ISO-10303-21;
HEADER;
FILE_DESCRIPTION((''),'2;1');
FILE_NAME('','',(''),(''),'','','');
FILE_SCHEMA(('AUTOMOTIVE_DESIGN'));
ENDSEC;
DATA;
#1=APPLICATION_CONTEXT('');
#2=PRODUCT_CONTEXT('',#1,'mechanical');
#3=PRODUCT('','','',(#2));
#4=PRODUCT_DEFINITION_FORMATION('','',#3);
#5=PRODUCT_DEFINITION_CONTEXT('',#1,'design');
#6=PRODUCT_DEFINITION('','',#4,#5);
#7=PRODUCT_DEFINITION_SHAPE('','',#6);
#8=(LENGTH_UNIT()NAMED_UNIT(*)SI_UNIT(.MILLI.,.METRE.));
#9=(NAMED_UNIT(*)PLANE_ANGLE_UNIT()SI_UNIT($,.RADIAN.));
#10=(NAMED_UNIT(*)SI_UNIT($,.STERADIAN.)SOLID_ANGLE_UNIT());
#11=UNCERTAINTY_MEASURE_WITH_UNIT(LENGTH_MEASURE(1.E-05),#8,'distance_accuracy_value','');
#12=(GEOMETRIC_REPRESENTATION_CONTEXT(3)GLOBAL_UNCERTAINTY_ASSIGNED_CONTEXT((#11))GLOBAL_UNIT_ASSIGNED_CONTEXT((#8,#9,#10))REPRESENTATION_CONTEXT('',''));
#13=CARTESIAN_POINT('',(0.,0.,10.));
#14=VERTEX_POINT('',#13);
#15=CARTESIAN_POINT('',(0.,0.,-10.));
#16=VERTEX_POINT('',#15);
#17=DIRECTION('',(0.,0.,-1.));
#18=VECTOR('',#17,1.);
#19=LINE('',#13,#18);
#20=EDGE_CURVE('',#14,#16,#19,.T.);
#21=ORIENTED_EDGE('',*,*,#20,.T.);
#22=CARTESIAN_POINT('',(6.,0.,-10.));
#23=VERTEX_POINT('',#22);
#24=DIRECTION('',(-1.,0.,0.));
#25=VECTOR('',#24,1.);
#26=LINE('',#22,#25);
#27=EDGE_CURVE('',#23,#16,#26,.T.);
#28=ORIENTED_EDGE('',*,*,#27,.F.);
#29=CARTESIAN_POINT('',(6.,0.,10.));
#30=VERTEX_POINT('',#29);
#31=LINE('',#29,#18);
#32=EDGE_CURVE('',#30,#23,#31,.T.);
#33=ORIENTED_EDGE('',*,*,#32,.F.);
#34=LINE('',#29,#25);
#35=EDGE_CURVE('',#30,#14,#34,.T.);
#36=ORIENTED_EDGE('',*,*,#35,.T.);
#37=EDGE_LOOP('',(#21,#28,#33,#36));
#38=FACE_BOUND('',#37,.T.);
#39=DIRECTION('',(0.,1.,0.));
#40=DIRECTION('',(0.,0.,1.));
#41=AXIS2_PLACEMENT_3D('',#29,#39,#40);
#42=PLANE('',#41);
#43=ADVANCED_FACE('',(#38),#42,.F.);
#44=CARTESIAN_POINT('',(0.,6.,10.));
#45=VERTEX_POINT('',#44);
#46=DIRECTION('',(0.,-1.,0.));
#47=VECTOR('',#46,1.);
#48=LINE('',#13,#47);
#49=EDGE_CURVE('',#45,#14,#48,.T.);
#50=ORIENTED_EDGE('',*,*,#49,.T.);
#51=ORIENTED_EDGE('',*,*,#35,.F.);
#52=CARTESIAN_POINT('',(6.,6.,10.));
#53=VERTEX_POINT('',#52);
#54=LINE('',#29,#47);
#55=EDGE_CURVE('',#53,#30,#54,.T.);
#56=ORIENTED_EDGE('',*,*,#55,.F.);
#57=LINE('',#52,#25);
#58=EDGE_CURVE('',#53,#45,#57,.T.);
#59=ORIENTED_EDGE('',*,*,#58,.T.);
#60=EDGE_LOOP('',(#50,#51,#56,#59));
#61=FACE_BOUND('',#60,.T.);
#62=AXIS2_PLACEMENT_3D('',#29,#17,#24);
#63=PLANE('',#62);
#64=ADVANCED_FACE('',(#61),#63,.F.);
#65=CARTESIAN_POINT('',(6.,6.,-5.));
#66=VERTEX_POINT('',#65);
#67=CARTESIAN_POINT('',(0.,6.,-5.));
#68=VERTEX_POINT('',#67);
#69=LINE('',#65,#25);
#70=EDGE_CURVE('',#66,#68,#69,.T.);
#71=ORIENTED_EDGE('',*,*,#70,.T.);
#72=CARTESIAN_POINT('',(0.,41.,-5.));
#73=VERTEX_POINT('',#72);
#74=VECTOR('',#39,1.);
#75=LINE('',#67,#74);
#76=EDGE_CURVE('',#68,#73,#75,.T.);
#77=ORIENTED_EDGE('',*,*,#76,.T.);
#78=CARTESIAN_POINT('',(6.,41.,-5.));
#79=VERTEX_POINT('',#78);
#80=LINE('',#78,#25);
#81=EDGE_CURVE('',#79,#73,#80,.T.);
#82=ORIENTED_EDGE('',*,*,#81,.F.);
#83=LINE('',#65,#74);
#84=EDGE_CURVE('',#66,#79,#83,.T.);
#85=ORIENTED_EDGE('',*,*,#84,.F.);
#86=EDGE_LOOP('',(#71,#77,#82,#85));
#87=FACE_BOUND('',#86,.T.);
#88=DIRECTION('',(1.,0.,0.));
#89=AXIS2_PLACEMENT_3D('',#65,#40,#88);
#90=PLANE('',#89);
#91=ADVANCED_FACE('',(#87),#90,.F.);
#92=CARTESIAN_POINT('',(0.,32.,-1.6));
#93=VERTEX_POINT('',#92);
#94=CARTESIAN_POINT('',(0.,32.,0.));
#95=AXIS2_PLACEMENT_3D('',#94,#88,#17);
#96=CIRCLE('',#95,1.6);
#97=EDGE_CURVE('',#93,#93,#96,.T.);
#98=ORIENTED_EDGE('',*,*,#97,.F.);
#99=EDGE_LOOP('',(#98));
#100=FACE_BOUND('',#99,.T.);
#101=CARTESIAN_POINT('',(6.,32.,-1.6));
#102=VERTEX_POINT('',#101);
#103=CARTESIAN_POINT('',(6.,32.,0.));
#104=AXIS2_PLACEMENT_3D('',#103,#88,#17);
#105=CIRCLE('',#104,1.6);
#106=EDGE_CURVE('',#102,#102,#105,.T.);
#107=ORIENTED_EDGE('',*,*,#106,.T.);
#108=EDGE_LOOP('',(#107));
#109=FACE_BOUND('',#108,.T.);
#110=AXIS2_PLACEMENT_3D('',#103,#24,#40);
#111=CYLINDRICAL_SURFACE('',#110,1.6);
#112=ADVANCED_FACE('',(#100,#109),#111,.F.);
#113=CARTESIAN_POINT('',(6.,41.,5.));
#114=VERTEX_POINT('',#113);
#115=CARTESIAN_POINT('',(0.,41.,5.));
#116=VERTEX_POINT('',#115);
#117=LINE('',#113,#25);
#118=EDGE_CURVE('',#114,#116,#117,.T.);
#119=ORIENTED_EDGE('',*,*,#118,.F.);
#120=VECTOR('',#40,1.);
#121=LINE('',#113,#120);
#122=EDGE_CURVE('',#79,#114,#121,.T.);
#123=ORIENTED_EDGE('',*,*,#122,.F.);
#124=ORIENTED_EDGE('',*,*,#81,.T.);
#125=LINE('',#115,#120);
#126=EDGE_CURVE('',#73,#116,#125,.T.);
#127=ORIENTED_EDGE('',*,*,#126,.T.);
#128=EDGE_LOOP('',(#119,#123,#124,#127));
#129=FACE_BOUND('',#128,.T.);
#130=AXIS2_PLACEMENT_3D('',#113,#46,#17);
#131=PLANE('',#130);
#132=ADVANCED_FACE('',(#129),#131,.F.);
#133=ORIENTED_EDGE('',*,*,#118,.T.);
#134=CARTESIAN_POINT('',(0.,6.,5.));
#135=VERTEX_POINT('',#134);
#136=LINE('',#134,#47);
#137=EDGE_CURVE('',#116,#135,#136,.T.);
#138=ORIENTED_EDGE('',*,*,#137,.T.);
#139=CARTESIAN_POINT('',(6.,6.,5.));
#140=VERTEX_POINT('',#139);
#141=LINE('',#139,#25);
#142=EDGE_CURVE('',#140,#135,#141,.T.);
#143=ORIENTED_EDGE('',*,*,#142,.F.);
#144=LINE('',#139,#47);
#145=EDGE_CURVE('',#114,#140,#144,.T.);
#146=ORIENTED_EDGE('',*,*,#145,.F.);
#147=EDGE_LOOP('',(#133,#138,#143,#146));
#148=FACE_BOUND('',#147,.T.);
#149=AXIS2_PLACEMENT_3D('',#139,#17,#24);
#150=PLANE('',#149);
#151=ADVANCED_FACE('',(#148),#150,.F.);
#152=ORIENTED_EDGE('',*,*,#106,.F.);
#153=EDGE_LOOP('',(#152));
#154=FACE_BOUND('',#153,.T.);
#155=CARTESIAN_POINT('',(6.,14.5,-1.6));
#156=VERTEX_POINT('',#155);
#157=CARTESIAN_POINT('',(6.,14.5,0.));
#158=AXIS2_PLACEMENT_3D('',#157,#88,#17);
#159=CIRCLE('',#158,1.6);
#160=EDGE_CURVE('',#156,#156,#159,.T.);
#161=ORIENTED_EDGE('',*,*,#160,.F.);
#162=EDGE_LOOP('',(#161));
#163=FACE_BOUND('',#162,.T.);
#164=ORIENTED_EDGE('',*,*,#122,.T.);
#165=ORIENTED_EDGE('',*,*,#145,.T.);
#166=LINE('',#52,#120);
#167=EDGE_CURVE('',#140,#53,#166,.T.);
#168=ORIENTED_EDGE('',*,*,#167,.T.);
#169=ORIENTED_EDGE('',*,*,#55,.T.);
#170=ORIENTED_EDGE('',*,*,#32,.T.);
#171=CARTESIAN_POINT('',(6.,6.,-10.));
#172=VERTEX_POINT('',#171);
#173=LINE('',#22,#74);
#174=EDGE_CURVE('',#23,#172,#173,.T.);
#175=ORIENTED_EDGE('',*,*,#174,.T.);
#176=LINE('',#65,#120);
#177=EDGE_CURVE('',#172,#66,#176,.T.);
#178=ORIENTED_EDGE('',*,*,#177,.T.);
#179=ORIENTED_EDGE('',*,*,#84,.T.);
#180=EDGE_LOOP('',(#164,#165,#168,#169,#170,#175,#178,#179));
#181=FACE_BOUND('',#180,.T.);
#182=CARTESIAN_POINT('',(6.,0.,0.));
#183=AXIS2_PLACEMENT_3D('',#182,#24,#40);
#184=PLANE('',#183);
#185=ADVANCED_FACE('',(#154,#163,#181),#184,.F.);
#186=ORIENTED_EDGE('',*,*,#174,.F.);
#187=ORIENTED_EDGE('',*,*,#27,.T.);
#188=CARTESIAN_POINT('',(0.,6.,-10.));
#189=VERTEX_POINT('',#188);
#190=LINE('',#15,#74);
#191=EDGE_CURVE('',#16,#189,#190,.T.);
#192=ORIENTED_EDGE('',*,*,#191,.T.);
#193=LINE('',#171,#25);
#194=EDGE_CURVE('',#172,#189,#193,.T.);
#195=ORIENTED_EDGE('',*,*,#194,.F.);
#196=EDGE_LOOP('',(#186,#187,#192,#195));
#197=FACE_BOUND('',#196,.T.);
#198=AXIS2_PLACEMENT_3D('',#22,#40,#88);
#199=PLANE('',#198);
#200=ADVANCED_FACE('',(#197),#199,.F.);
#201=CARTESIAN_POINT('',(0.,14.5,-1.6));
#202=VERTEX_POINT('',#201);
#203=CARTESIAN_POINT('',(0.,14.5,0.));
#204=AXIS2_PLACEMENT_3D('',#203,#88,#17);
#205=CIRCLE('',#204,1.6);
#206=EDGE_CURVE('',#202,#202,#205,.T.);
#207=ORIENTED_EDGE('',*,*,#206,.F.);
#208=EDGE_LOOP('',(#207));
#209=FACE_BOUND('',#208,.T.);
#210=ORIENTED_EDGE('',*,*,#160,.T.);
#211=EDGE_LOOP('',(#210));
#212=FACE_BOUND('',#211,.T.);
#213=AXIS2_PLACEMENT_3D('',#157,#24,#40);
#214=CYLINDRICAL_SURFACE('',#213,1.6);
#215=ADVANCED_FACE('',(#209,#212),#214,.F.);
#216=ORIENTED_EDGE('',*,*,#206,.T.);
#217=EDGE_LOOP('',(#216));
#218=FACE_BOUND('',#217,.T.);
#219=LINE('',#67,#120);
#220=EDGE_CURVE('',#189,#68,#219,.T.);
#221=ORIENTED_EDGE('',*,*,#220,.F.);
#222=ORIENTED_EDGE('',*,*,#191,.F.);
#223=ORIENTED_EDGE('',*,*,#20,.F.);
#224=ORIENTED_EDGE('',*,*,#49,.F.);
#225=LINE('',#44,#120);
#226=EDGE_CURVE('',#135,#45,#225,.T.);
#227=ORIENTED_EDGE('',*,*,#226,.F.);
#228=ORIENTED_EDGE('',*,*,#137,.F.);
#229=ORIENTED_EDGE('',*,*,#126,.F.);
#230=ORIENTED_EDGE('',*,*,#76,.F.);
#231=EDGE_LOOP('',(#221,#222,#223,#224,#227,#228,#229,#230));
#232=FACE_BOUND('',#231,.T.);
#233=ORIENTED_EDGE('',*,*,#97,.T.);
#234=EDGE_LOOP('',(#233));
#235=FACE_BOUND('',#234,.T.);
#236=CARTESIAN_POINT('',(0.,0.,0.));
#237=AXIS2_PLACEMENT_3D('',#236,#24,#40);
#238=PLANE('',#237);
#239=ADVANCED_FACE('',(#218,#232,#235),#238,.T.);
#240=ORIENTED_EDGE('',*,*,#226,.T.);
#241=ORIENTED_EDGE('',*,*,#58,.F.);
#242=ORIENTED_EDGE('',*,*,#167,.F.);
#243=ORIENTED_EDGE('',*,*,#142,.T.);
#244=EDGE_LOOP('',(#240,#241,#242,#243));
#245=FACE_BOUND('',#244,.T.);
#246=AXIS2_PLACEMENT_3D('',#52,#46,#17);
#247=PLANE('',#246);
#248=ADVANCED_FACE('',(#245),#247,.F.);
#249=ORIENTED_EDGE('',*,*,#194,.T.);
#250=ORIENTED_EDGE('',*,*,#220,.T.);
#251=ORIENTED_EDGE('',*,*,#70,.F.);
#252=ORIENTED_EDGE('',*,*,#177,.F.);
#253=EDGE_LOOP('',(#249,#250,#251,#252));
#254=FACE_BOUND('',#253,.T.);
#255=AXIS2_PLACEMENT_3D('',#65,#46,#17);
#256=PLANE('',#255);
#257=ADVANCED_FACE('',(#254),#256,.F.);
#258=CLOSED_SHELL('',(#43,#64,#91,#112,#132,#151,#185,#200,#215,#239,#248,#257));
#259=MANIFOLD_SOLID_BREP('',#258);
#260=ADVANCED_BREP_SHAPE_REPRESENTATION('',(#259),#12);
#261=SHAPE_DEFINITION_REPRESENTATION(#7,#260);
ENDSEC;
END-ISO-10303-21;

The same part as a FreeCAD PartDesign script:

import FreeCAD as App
import Part
import Sketcher

V = App.Vector

doc = App.newDocument("Part")
body = doc.addObject("PartDesign::Body", "Body")

# Sketch on YZ plane
sketch1 = body.newObject("Sketcher::SketchObject", "Sketch")
sketch1.AttachmentSupport = (doc.getObject("YZ_Plane"), [""])
sketch1.MapMode = "FlatFace"
sketch1.addGeometry(Part.LineSegment(V(6, -10, 0), V(6, -5, 0)), False)
sketch1.addGeometry(Part.LineSegment(V(6, -5, 0), V(41, -5, 0)), False)
sketch1.addGeometry(Part.LineSegment(V(41, -5, 0), V(41, 5, 0)), False)
sketch1.addGeometry(Part.LineSegment(V(41, 5, 0), V(6, 5, 0)), False)
sketch1.addGeometry(Part.LineSegment(V(6, 5, 0), V(6, 10, 0)), False)
sketch1.addGeometry(Part.LineSegment(V(6, 10, 0), V(0, 10, 0)), False)
sketch1.addGeometry(Part.LineSegment(V(0, 10, 0), V(0, -10, 0)), False)
sketch1.addGeometry(Part.LineSegment(V(0, -10, 0), V(6, -10, 0)), False)
sketch1.addGeometry(Part.Circle(V(14.5, 0, 0), V(0, 0, 1), 1.6), False)
sketch1.addGeometry(Part.Circle(V(32, 0, 0), V(0, 0, 1), 1.6), False)
sketch1.addConstraint(Sketcher.Constraint("Coincident", 0, 2, 1, 1))
sketch1.addConstraint(Sketcher.Constraint("Coincident", 1, 2, 2, 1))
sketch1.addConstraint(Sketcher.Constraint("Coincident", 2, 2, 3, 1))
sketch1.addConstraint(Sketcher.Constraint("Coincident", 3, 2, 4, 1))
sketch1.addConstraint(Sketcher.Constraint("Coincident", 4, 2, 5, 1))
sketch1.addConstraint(Sketcher.Constraint("Coincident", 5, 2, 6, 1))
sketch1.addConstraint(Sketcher.Constraint("Coincident", 6, 2, 7, 1))
sketch1.addConstraint(Sketcher.Constraint("Coincident", 7, 2, 0, 1))
sketch1.addConstraint(Sketcher.Constraint("Vertical", 0))
sketch1.addConstraint(Sketcher.Constraint("Horizontal", 1))
sketch1.addConstraint(Sketcher.Constraint("Vertical", 2))
sketch1.addConstraint(Sketcher.Constraint("Horizontal", 3))
sketch1.addConstraint(Sketcher.Constraint("Vertical", 4))
sketch1.addConstraint(Sketcher.Constraint("Horizontal", 5))
sketch1.addConstraint(Sketcher.Constraint("Vertical", 6))
sketch1.addConstraint(Sketcher.Constraint("Horizontal", 7))
sketch1.addConstraint(Sketcher.Constraint("Equal", 8, 9))
sketch1.addConstraint(Sketcher.Constraint("Symmetric", 5, 2, 6, 2, -1, 1))
sketch1.addConstraint(Sketcher.Constraint("Symmetric", 0, 2, 3, 2, -1))
sketch1.addConstraint(Sketcher.Constraint("PointOnObject", 8, 3, -1))
sketch1.addConstraint(Sketcher.Constraint("PointOnObject", 9, 3, -1))
sketch1.addConstraint(Sketcher.Constraint("Diameter", 8, 3.2))
sketch1.addConstraint(Sketcher.Constraint("DistanceX", 1, 1, 1, 2, 35.0))
sketch1.addConstraint(Sketcher.Constraint("DistanceX", 5, 2, 5, 1, 6.0))
sketch1.addConstraint(Sketcher.Constraint("DistanceY", 0, 1, 0, 2, 5.0))
sketch1.addConstraint(Sketcher.Constraint("DistanceY", 2, 1, 2, 2, 10.0))
sketch1.addConstraint(Sketcher.Constraint("DistanceX", -1, 1, 9, 3, 32.0))
sketch1.addConstraint(Sketcher.Constraint("DistanceX", -1, 1, 8, 3, 14.5))
pad1 = body.newObject("PartDesign::Pad", "Pad")
pad1.Profile = sketch1
pad1.Length = 6

doc.recompute()
